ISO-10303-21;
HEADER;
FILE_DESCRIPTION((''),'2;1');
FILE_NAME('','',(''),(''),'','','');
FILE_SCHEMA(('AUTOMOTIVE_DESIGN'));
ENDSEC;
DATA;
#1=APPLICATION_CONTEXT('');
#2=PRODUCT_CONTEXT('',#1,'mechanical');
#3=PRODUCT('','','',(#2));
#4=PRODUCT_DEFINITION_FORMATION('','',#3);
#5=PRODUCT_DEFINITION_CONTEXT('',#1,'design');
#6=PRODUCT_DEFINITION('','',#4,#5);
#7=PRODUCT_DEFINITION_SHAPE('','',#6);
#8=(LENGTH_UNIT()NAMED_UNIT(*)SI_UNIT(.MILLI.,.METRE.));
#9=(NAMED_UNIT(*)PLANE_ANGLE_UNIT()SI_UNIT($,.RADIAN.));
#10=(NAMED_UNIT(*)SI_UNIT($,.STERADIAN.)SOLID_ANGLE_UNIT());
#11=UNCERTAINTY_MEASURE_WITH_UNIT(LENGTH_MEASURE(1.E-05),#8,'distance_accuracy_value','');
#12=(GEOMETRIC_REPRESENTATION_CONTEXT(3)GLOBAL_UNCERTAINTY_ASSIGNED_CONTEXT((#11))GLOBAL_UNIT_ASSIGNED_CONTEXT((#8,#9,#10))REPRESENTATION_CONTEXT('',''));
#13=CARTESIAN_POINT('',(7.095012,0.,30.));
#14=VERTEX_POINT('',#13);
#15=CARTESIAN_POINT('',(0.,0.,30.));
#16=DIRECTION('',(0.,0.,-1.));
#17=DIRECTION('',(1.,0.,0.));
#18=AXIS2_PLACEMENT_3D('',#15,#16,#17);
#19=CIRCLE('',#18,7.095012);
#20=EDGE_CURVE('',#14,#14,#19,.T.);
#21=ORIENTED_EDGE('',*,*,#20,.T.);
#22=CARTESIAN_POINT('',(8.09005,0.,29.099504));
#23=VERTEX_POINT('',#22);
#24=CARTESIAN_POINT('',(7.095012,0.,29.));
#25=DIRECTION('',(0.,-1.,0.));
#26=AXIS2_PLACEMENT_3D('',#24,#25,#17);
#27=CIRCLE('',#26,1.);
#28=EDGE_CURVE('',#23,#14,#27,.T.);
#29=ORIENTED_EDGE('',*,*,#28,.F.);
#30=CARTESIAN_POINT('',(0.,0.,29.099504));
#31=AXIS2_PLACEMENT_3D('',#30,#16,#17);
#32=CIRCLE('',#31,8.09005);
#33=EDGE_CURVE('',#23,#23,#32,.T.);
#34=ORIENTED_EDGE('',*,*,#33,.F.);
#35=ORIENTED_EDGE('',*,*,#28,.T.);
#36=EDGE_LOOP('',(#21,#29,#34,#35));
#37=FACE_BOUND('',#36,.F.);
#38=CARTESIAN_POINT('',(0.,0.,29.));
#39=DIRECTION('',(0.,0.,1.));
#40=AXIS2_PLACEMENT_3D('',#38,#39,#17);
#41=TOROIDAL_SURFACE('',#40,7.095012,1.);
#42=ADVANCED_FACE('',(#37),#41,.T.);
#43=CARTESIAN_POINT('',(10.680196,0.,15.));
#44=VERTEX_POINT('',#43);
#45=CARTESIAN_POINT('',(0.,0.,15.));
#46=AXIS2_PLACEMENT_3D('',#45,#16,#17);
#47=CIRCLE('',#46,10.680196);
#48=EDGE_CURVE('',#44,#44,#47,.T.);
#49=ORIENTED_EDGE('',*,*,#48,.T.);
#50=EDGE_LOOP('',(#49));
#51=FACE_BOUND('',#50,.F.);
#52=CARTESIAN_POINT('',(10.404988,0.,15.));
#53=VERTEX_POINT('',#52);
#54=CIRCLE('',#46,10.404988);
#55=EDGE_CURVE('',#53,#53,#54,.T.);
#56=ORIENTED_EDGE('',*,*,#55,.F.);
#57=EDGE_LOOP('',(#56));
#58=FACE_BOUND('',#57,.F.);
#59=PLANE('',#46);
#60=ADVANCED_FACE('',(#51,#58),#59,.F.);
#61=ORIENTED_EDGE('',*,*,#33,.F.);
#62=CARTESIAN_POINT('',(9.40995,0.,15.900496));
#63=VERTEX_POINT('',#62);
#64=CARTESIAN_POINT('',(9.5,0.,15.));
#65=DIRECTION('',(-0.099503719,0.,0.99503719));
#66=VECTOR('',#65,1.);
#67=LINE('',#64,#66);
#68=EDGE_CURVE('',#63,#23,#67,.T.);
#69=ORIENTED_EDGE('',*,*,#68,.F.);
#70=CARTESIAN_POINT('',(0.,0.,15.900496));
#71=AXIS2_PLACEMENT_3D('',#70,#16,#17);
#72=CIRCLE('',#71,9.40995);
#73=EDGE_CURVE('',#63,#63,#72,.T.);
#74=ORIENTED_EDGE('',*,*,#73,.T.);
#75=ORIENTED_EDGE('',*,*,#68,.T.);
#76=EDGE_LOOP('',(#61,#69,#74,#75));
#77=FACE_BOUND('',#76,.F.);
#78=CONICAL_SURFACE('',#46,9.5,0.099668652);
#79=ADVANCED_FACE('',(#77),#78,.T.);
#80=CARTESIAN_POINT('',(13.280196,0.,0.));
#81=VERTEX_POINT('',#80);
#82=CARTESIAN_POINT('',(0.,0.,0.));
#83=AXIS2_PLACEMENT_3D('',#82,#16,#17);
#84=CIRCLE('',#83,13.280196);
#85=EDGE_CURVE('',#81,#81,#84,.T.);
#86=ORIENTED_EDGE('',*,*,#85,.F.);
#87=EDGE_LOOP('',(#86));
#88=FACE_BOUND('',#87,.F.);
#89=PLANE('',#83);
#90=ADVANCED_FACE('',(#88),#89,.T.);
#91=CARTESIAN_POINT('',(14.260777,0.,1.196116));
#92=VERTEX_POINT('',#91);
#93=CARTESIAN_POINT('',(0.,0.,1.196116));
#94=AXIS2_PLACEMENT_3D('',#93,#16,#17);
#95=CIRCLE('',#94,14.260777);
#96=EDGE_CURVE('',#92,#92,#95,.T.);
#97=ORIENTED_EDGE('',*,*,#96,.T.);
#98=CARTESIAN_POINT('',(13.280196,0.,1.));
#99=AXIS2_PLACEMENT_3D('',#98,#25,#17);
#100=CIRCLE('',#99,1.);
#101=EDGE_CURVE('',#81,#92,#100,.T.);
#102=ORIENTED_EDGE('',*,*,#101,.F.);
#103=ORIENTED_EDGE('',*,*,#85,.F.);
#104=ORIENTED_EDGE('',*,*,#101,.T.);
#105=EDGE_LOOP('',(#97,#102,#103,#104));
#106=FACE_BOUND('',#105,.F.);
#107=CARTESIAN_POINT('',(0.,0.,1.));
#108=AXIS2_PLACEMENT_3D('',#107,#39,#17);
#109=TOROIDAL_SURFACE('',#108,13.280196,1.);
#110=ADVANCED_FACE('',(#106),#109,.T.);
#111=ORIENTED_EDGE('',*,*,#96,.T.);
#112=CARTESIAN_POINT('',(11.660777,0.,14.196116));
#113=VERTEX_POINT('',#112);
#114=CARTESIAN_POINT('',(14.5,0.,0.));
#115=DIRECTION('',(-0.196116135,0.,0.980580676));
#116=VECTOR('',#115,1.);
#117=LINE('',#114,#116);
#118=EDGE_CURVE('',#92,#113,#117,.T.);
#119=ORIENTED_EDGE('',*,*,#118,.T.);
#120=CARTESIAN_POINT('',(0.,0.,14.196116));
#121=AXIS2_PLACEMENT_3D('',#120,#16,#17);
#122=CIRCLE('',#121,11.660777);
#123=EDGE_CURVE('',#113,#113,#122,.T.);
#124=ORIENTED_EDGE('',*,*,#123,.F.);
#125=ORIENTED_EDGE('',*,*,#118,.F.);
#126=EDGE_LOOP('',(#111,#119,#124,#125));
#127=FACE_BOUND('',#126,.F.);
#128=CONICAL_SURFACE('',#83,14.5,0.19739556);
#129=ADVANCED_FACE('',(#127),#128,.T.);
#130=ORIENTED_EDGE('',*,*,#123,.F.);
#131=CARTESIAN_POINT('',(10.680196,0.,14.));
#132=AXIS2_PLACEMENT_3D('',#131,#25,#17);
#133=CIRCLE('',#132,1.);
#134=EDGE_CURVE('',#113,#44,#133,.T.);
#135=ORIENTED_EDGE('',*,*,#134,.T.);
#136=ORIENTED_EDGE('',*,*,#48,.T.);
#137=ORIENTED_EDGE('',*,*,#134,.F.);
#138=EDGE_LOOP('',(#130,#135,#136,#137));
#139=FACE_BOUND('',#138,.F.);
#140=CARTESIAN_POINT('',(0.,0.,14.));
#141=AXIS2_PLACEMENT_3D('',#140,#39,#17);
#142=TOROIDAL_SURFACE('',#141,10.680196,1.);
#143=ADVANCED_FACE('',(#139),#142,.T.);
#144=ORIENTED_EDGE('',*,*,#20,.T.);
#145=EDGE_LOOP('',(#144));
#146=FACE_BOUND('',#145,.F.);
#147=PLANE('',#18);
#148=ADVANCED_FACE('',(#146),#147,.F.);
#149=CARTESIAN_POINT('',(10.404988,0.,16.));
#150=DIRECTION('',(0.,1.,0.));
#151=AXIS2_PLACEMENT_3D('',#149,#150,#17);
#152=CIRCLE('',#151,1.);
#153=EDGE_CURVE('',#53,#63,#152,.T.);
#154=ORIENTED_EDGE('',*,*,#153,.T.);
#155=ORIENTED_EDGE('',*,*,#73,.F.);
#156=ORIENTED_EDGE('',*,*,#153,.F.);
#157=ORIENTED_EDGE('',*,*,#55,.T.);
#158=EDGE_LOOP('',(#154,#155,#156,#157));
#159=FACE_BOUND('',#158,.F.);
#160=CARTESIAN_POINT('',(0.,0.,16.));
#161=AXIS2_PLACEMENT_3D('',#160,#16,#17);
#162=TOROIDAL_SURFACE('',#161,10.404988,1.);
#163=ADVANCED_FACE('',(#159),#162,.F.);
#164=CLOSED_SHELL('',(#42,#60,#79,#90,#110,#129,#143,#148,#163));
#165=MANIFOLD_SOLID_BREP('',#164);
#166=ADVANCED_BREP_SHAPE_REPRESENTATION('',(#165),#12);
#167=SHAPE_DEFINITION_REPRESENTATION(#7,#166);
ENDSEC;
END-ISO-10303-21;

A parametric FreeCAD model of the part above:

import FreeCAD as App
import Part
import Sketcher

V = App.Vector


def edges_at(feature, points):
    """Names of the edges that pass closest to the given points."""
    edges = feature.Shape.Edges
    near = lambda p: min(range(len(edges)), key=lambda i: edges[i].distToShape(Part.Vertex(*p))[0])
    return sorted({f"Edge{near(p) + 1}" for p in points})

doc = App.newDocument("Part")
body = doc.addObject("PartDesign::Body", "Body")

# Sketch on XZ plane
sketch1 = body.newObject("Sketcher::SketchObject", "Sketch")
sketch1.AttachmentSupport = (doc.getObject("XZ_Plane"), [""])
sketch1.MapMode = "FlatFace"
sketch1.addGeometry(Part.LineSegment(V(0, 30, 0), V(0, 0, 0)), False)
sketch1.addGeometry(Part.LineSegment(V(0, 0, 0), V(14.5, 0, 0)), False)
sketch1.addGeometry(Part.LineSegment(V(14.5, 0, 0), V(11.5, 15, 0)), False)
sketch1.addGeometry(Part.LineSegment(V(11.5, 15, 0), V(9.5, 15, 0)), False)
sketch1.addGeometry(Part.LineSegment(V(9.5, 15, 0), V(8, 30, 0)), False)
sketch1.addGeometry(Part.LineSegment(V(8, 30, 0), V(0, 30, 0)), False)
sketch1.addConstraint(Sketcher.Constraint("Coincident", 0, 2, 1, 1))
sketch1.addConstraint(Sketcher.Constraint("Coincident", 1, 2, 2, 1))
sketch1.addConstraint(Sketcher.Constraint("Coincident", 2, 2, 3, 1))
sketch1.addConstraint(Sketcher.Constraint("Coincident", 3, 2, 4, 1))
sketch1.addConstraint(Sketcher.Constraint("Coincident", 4, 2, 5, 1))
sketch1.addConstraint(Sketcher.Constraint("Coincident", 5, 2, 0, 1))
sketch1.addConstraint(Sketcher.Constraint("Vertical", 0))
sketch1.addConstraint(Sketcher.Constraint("Horizontal", 1))
sketch1.addConstraint(Sketcher.Constraint("Horizontal", 3))
sketch1.addConstraint(Sketcher.Constraint("Horizontal", 5))
sketch1.addConstraint(Sketcher.Constraint("Coincident", 0, 2, -1, 1))
sketch1.addConstraint(Sketcher.Constraint("DistanceX", 3, 2, 3, 1, 2.0))
sketch1.addConstraint(Sketcher.Constraint("DistanceX", 5, 2, 5, 1, 8.0))
sketch1.addConstraint(Sketcher.Constraint("DistanceY", 0, 2, 0, 1, 30.0))
sketch1.addConstraint(Sketcher.Constraint("DistanceX", 1, 1, 1, 2, 14.5))
sketch1.addConstraint(Sketcher.Constraint("DistanceY", -1, 1, 2, 2, 15.0))
sketch1.addConstraint(Sketcher.Constraint("DistanceX", 2, 2, 1, 2, 3.0))
revolution = body.newObject("PartDesign::Revolution", "Revolution")
revolution.Profile = sketch1
revolution.ReferenceAxis = (sketch1, ["V_Axis"])
revolution.Angle = 360
doc.recompute()

fillet = body.newObject("PartDesign::Fillet", "Fillet")
fillet.Base = (revolution, edges_at(revolution, [
    (-11.5, 0, 15),
    (-9.5, 0, 15),
    (-8, 0, 30),
    (-14.5, 0, 0),
]))
fillet.Radius = 1

doc.recompute()
